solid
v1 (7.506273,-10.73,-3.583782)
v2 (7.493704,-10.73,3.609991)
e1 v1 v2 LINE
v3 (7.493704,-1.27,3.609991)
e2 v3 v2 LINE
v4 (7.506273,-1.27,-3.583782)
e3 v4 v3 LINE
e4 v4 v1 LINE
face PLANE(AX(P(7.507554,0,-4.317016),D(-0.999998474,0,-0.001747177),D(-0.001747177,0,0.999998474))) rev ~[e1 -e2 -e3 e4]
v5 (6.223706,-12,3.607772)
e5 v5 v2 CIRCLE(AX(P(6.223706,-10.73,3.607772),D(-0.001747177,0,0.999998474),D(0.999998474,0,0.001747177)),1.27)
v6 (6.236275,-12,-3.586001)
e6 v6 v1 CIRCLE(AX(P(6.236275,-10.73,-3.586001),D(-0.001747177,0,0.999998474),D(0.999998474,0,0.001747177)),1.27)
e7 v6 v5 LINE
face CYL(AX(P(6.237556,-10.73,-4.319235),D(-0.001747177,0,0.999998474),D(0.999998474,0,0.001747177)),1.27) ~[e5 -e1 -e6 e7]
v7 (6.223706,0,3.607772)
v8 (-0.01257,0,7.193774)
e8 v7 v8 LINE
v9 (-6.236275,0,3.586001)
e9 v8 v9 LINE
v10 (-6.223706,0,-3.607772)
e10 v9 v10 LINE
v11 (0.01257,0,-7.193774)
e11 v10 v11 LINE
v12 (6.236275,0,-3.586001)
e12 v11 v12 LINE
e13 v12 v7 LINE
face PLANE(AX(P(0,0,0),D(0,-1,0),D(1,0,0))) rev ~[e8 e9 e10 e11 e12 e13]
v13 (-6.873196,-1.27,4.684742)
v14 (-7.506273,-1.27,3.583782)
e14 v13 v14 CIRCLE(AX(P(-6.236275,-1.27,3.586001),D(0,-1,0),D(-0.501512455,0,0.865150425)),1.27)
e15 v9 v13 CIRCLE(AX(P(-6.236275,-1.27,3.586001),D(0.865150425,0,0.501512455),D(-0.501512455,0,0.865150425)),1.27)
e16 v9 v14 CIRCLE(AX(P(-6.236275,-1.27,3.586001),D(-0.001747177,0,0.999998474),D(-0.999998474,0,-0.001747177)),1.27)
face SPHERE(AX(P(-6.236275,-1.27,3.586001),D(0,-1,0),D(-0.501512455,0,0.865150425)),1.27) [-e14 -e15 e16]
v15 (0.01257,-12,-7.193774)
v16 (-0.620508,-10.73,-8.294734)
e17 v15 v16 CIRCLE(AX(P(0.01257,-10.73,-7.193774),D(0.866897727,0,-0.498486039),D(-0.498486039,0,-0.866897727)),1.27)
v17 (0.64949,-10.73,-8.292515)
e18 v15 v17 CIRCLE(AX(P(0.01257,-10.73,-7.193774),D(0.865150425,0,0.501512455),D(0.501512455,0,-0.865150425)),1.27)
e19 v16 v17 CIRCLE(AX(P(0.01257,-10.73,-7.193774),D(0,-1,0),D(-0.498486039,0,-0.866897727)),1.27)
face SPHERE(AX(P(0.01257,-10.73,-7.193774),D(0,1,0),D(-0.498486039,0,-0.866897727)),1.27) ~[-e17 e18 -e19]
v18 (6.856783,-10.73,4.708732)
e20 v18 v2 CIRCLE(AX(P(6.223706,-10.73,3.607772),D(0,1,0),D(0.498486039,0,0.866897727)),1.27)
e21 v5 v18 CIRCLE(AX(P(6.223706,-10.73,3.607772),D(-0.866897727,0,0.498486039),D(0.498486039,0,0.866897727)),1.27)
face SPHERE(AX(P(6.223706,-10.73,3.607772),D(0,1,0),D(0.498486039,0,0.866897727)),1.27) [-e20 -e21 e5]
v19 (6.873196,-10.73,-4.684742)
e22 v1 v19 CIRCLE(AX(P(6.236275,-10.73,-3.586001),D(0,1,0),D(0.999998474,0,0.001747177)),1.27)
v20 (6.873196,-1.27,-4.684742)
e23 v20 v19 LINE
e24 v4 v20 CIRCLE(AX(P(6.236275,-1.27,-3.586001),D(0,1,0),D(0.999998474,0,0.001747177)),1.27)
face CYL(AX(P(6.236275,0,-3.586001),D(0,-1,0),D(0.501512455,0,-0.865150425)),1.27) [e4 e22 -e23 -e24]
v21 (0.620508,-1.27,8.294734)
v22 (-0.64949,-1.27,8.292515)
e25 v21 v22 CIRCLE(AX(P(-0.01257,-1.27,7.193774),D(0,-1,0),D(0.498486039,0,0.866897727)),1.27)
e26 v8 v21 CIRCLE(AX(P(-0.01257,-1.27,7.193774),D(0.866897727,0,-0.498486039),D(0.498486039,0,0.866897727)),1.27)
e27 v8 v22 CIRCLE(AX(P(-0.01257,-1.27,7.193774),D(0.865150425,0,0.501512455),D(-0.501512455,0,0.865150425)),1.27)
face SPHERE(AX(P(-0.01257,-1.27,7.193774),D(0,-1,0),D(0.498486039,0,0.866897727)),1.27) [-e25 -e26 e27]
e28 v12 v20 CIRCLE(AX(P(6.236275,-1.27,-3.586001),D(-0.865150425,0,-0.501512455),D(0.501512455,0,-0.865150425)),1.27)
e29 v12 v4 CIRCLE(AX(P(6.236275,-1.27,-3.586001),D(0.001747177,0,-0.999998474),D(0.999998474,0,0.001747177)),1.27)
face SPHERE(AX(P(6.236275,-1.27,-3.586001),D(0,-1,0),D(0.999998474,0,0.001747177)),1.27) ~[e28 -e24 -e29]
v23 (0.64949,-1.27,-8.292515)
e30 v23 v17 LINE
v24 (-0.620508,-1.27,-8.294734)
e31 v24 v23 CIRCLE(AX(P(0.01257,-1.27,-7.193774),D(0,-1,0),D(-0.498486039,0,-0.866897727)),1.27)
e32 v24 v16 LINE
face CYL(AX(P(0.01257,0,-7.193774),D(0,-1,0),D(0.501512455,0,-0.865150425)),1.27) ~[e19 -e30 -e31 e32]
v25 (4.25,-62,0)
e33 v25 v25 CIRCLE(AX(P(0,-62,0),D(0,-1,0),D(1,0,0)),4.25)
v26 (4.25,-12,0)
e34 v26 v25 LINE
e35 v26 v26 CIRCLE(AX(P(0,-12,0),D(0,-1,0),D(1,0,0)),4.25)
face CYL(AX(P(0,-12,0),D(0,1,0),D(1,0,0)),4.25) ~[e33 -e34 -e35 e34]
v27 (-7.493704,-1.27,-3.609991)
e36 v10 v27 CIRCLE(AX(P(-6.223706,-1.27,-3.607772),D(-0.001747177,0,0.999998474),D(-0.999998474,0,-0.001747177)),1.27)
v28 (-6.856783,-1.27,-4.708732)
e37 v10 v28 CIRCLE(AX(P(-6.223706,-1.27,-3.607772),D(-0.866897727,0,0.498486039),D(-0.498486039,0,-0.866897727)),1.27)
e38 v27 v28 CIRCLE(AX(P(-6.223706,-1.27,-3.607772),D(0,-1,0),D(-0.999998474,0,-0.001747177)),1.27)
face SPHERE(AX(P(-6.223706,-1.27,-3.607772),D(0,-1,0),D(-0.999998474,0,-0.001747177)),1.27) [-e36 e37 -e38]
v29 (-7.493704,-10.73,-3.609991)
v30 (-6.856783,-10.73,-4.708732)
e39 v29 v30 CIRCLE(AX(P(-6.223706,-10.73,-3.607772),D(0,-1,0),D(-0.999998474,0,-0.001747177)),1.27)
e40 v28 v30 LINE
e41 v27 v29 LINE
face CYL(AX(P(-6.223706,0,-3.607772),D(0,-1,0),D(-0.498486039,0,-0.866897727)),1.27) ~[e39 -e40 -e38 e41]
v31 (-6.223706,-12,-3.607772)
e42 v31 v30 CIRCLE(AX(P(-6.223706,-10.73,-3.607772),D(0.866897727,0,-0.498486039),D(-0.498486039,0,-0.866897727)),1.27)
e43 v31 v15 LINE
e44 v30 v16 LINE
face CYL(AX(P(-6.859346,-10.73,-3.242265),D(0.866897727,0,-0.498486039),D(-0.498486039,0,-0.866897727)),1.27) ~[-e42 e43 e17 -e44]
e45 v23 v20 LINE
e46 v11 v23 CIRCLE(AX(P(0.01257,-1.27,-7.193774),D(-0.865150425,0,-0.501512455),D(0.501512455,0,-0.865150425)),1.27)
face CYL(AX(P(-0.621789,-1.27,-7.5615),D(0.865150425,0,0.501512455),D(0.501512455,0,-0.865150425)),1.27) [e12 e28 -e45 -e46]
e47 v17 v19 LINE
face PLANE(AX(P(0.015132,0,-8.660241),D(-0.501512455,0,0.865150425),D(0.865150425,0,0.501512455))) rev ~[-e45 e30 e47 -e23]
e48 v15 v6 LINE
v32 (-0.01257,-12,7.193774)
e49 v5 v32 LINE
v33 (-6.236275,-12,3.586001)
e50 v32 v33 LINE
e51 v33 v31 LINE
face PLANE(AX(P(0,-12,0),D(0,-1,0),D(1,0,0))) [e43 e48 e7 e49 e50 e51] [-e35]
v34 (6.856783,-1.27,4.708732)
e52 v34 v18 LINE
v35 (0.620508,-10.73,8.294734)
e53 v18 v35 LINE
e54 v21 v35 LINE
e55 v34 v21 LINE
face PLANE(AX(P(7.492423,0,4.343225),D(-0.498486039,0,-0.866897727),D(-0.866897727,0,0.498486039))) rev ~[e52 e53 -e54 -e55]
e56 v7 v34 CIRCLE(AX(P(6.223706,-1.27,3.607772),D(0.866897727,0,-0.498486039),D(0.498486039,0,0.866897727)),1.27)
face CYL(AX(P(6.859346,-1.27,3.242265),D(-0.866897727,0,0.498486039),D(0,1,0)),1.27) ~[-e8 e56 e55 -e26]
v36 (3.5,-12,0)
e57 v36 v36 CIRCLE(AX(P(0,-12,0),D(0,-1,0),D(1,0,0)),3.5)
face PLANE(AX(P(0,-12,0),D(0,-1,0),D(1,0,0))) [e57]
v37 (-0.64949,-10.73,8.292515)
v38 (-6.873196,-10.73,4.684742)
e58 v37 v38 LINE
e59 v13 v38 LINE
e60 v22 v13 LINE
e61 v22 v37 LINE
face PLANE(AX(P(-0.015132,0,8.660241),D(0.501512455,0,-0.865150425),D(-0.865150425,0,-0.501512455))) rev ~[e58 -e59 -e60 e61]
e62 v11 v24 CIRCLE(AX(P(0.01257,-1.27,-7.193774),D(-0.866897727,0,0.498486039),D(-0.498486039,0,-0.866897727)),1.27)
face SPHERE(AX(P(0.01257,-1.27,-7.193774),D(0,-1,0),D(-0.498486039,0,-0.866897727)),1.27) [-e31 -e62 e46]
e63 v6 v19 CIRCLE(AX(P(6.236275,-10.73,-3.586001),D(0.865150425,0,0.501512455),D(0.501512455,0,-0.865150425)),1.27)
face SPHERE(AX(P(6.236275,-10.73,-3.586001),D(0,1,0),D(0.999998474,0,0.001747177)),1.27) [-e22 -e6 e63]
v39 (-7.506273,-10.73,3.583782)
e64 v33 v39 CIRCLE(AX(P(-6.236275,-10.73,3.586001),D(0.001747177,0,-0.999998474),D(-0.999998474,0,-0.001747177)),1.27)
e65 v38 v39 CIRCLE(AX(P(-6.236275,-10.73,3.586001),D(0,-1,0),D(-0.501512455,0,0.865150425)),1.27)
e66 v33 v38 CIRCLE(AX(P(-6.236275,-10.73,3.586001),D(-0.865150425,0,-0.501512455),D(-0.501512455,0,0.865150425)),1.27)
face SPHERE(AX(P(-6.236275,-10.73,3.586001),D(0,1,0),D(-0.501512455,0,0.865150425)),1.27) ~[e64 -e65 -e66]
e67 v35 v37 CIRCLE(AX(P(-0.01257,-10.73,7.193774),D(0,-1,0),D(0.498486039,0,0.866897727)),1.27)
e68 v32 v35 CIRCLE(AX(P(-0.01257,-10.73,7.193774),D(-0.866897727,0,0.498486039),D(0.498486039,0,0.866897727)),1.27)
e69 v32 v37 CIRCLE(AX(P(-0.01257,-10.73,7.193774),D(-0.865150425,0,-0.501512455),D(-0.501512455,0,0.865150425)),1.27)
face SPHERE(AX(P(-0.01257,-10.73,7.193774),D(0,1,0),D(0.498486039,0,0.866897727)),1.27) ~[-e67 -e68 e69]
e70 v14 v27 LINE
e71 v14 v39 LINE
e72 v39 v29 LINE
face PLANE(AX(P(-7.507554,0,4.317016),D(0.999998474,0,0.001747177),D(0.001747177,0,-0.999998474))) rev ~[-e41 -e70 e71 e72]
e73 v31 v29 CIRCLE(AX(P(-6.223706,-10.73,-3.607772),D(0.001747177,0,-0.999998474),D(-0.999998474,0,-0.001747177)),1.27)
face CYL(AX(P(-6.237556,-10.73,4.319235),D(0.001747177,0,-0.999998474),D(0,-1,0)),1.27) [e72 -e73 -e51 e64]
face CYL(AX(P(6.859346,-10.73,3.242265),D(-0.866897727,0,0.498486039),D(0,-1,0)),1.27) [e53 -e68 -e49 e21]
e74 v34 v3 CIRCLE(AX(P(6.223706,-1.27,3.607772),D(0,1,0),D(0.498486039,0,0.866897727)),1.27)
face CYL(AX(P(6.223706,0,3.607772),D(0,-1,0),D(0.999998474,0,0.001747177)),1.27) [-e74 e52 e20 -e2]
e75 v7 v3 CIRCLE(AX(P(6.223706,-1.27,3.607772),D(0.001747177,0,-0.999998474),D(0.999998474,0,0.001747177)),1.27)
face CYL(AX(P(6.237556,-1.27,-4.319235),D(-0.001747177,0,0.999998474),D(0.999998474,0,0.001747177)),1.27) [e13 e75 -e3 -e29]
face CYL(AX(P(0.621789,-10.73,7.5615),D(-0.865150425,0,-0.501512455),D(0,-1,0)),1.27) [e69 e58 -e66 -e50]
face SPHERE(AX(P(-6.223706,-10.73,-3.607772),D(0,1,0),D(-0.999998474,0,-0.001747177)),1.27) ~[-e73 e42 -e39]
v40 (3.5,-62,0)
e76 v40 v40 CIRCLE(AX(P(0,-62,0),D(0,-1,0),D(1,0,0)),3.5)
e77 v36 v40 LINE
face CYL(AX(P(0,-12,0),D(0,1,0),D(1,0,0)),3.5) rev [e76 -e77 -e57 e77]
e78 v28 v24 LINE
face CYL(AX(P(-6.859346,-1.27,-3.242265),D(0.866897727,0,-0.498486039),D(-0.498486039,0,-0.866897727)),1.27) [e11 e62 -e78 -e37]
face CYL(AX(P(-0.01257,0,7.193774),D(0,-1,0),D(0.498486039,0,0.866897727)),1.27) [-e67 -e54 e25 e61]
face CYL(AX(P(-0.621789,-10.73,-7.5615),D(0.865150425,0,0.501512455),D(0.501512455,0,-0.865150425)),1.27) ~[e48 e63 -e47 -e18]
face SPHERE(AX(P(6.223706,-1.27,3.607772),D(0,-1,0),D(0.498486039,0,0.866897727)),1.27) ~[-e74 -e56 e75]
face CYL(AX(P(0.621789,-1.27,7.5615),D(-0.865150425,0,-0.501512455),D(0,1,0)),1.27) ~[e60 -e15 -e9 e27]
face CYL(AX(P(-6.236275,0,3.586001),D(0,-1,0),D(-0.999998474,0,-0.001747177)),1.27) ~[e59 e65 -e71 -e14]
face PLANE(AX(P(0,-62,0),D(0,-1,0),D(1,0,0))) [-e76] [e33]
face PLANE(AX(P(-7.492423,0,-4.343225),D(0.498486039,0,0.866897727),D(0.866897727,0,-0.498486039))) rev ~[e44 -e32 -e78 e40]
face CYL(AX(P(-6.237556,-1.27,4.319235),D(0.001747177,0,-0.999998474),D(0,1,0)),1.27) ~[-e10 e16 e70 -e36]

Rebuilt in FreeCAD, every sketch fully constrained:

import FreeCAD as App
import Part
import Sketcher
from FreeCAD import Vector
Q = App.Units.Quantity


def edges_at(feature, points):
    """Names of the edges that pass closest to the given points."""
    edges = feature.Shape.Edges
    near = lambda p: min(range(len(edges)), key=lambda i: edges[i].distToShape(Part.Vertex(*p))[0])
    return sorted({f"Edge{near(p) + 1}" for p in points})

doc = App.newDocument("Part")
params = doc.addObject("Spreadsheet::Sheet", "Params")
for row, (alias, value) in enumerate([
    ("pad1_length", "12 mm"),
    ("sketch2_diameter", "7 mm"),
    ("sketch2_diameter2", "8.5 mm"),
    ("pad2_length", "50 mm"),
    ("fillet_radius", "1.27 mm"),
], start=1):
    params.set(f"A{row}", alias)
    params.set(f"B{row}", "=" + value)
    params.setAlias(f"B{row}", alias)

body = doc.addObject("PartDesign::Body", "Body")

# Sketch on XZ plane
sketch1 = body.newObject("Sketcher::SketchObject", "Sketch")
sketch1.AttachmentSupport = (doc.getObject("XZ_Plane"), [""])
sketch1.MapMode = "FlatFace"
sketch1.addGeometry([
    Part.LineSegment(Vector(0, -9, 0), Vector(8, -4, 0)),  # 0
    Part.LineSegment(Vector(8, -4, 0), Vector(7, 4, 0)),  # 1
    Part.LineSegment(Vector(7, 4, 0), Vector(0, 9, 0)),  # 2
    Part.LineSegment(Vector(0, 9, 0), Vector(-8, 4, 0)),  # 3
    Part.LineSegment(Vector(-8, 4, 0), Vector(-7, -4, 0)),  # 4
    Part.LineSegment(Vector(-7, -4, 0), Vector(0, -9, 0)),  # 5
], False)
sketch1.addConstraint([
    Sketcher.Constraint("Coincident", 0, 2, 1, 1),
    Sketcher.Constraint("Coincident", 1, 2, 2, 1),
    Sketcher.Constraint("Coincident", 2, 2, 3, 1),
    Sketcher.Constraint("Coincident", 3, 2, 4, 1),
    Sketcher.Constraint("Coincident", 4, 2, 5, 1),
    Sketcher.Constraint("Coincident", 5, 2, 0, 1),
    Sketcher.Constraint("Symmetric", 0, 2, 3, 2, -1, 1),
    Sketcher.Constraint("Symmetric", 1, 2, 4, 2, -1, 1),
    Sketcher.Constraint("Symmetric", 2, 2, 5, 2, -1, 1),
    Sketcher.Constraint("Equal", 0, 1),
    Sketcher.Constraint("Equal", 1, 2),
    Sketcher.Constraint("DistanceY", -1, 1, 2, 2, Q("8.660241 mm")),
    Sketcher.Constraint("DistanceX", 1, 2, 0, 2, Q("0.015131 mm")),
    Sketcher.Constraint("DistanceY", 0, 2, 1, 2, Q("8.660241 mm")),
    Sketcher.Constraint("DistanceX", 3, 2, 2, 2, Q("7.492422 mm")),
])
pad1 = body.newObject("PartDesign::Pad", "Pad")
pad1.Profile = sketch1
pad1.setExpression("Length", "Params.pad1_length")

# Sketch on XZ plane
sketch2 = body.newObject("Sketcher::SketchObject", "Sketch001")
sketch2.AttachmentSupport = (doc.getObject("XZ_Plane"), [""])
sketch2.MapMode = "FlatFace"
sketch2.AttachmentOffset = App.Placement(Vector(0, 0, 12), App.Rotation())
sketch2.addGeometry([
    Part.Circle(Vector(0, 0, 0), Vector(0, 0, 1), 4.2),
    Part.Circle(Vector(0, 0, 0), Vector(0, 0, 1), 3.5),
], False)
sketch2.addConstraint([
    Sketcher.Constraint("Coincident", 0, 3, -1, 1),
    Sketcher.Constraint("Coincident", 1, 3, -1, 1),
    Sketcher.Constraint("Diameter", 1, Q("7 mm")),
    Sketcher.Constraint("Diameter", 0, Q("8.5 mm")),
])
sketch2.setExpression("Constraints[2]", "Params.sketch2_diameter")
sketch2.setExpression("Constraints[3]", "Params.sketch2_diameter2")
pad2 = body.newObject("PartDesign::Pad", "Pad001")
pad2.Profile = sketch2
pad2.setExpression("Length", "Params.pad2_length")
doc.recompute()

fillet = body.newObject("PartDesign::Fillet", "Fillet")
fillet.Base = (pad2, edges_at(pad2, [
    (7.492, -6, 4.343),
    (-0.015, -6, 8.66),
    (3.739, 0, 6.502),
    (3.739, -12, 6.502),
    (7.508, -6, -4.317),
    (7.5, 0, 0.013),
    (7.5, -12, 0.013),
    (-7.508, -6, 4.317),
    (-3.761, 0, 6.489),
    (-3.761, -12, 6.489),
    (-7.492, -6, -4.343),
    (-7.5, 0, -0.013),
    (-7.5, -12, -0.013),
    (0.015, -6, -8.66),
    (-3.739, 0, -6.502),
    (-3.739, -12, -6.502),
    (3.761, 0, -6.489),
    (3.761, -12, -6.489),
]))
fillet.setExpression("Radius", "Params.fillet_radius")

doc.recompute()
